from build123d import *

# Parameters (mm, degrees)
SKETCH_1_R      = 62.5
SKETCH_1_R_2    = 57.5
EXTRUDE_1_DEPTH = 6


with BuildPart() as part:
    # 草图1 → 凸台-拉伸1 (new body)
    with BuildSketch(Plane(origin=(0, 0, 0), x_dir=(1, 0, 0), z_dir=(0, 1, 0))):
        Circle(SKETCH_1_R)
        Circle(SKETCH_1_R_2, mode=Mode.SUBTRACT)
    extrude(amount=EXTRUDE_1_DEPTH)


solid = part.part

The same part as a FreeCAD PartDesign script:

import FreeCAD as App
import Part
import Sketcher
from FreeCAD import Vector

doc = App.newDocument("Part")
body = doc.addObject("PartDesign::Body", "Body")

sketch1 = doc.addObject("Sketcher::SketchObject", "Sketch")
body.addObject(sketch1)
sketch1.AttachmentSupport = (doc.XZ_Plane, [""])
sketch1.MapMode = "FlatFace"
sketch1.addGeometry(Part.Circle(Vector(0, 0, 0), Vector(0, 0, 1), 62), False)
sketch1.addGeometry(Part.Circle(Vector(0, 0, 0), Vector(0, 0, 1), 58), False)
sketch1.addConstraint(Sketcher.Constraint("Coincident", 0, 3, -1, 1))
sketch1.addConstraint(Sketcher.Constraint("Coincident", 1, 3, -1, 1))
sketch1.addConstraint(Sketcher.Constraint("Diameter", 0, 125.0))
sketch1.addConstraint(Sketcher.Constraint("Diameter", 1, 115.0))
pad1 = doc.addObject("PartDesign::Pad", "Pad")
body.addObject(pad1)
pad1.Profile = sketch1
pad1.Length = 6
pad1.Reversed = True

doc.recompute()
